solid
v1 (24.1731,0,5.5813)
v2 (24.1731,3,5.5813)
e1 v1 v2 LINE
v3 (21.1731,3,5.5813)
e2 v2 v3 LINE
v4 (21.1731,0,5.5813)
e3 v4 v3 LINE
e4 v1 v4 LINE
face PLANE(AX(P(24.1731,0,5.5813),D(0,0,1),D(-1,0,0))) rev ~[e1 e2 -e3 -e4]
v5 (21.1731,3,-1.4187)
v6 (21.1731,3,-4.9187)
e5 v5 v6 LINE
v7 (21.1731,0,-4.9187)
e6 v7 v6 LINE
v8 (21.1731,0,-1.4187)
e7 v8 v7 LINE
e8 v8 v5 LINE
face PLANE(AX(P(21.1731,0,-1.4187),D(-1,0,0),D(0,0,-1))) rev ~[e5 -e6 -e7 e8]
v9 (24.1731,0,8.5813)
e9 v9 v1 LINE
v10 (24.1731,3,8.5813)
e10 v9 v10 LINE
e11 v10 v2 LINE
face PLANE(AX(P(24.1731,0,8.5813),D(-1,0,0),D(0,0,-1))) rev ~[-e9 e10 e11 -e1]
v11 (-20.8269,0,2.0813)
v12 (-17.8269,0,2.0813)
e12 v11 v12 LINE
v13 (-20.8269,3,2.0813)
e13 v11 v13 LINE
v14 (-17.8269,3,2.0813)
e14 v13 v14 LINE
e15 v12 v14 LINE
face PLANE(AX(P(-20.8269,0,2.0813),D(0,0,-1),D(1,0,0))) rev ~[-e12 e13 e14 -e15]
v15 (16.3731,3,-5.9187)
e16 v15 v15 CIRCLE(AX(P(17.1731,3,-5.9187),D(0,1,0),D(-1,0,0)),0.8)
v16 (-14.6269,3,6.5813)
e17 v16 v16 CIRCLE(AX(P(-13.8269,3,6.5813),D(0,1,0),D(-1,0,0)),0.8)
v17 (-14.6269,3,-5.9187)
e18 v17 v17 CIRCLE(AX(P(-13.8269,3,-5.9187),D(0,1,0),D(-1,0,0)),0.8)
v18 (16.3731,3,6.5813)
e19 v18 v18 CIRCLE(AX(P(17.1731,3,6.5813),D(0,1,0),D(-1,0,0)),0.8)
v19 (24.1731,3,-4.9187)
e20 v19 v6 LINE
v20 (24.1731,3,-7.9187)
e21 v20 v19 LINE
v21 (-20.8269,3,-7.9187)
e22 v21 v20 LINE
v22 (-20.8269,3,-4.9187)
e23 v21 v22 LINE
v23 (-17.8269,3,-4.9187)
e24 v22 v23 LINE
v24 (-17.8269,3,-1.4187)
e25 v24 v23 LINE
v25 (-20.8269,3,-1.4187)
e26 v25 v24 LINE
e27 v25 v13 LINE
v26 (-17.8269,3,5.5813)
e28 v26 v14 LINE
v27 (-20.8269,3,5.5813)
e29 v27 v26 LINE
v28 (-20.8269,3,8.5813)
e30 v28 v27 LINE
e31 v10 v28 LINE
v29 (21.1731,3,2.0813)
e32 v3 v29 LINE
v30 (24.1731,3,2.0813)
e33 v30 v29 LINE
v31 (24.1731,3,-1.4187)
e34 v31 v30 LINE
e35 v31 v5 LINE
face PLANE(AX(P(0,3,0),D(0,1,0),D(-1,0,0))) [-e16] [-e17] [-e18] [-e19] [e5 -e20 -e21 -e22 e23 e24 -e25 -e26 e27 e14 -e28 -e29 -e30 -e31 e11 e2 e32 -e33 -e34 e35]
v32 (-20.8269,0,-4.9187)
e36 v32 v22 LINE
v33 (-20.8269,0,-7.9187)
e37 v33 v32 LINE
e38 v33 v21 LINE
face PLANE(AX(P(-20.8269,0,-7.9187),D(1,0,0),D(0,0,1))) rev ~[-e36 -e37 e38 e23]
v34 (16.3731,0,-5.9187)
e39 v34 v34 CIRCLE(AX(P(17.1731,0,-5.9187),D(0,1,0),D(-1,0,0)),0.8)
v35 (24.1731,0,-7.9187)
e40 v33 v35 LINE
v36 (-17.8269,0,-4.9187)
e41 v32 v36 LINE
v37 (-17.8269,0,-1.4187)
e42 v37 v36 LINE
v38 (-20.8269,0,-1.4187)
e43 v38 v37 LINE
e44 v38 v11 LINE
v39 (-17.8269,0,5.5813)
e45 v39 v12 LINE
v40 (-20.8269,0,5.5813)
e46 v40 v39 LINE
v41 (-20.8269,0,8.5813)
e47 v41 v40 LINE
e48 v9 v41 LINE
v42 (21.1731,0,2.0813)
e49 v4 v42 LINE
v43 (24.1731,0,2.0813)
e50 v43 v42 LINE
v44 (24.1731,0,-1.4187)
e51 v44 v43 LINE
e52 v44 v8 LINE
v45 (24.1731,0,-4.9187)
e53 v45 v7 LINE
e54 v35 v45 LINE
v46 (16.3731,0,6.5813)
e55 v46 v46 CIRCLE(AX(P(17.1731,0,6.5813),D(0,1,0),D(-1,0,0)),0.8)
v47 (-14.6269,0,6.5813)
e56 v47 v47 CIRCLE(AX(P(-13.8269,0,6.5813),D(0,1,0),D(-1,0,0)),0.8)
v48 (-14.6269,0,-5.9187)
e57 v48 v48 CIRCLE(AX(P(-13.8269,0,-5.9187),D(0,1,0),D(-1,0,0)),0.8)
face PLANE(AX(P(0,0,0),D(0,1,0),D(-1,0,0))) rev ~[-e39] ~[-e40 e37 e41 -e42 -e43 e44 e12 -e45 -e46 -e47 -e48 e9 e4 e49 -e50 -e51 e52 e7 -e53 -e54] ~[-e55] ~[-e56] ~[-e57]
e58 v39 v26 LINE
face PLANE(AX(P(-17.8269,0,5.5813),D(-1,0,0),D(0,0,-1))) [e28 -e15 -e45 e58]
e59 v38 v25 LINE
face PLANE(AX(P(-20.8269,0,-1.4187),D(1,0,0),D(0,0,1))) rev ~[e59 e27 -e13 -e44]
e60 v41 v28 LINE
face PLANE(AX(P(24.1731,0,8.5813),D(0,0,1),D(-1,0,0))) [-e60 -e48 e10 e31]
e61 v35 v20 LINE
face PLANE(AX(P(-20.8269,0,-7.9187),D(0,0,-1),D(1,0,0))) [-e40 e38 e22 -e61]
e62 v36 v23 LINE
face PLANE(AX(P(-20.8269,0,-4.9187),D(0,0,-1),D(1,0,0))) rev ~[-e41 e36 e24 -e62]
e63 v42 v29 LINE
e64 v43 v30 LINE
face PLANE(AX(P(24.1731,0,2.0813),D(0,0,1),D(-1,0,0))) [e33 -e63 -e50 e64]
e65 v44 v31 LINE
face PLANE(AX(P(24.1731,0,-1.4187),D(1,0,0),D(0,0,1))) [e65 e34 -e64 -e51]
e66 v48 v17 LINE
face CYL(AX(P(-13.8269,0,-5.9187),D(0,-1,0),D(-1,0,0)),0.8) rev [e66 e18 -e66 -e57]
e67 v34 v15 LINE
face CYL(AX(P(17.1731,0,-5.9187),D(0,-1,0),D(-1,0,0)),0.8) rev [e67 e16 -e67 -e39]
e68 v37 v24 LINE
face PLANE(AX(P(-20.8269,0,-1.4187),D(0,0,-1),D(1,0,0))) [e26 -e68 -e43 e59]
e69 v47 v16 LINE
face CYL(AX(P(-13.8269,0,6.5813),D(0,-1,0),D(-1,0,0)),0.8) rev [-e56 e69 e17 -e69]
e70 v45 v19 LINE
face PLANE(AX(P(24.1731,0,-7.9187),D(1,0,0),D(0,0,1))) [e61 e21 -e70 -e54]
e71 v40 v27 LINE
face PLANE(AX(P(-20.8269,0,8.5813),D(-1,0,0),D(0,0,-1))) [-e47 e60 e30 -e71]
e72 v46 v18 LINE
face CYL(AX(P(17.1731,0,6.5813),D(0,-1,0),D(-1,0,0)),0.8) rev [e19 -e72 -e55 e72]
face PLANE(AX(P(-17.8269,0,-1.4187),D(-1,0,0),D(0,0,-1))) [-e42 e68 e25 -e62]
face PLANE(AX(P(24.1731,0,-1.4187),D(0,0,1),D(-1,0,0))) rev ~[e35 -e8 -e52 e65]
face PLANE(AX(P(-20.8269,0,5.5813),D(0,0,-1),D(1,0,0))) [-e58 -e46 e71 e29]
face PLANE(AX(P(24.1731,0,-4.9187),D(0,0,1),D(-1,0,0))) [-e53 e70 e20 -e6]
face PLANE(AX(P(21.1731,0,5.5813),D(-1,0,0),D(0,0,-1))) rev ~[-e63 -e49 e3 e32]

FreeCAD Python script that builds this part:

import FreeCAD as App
import Part
import Sketcher
Q = App.Units.Quantity

doc = App.newDocument("Part")
body = doc.addObject("PartDesign::Body", "Body")

sketch1 = body.newObject("Sketcher::SketchObject", "Sketch")
sketch1.AttachmentSupport = (doc.getObject("XZ_Plane"), [""])
sketch1.MapMode = "FlatFace"
sketch1.addGeometry(Part.LineSegment(App.Vector(24.2, 5.6, 0), App.Vector(21.2, 5.6, 0)), False)
sketch1.addGeometry(Part.LineSegment(App.Vector(21.2, 5.6, 0), App.Vector(21.2, 2.1, 0)), False)
sketch1.addGeometry(Part.LineSegment(App.Vector(21.2, 2.1, 0), App.Vector(24.2, 2.1, 0)), False)
sketch1.addGeometry(Part.LineSegment(App.Vector(24.2, 2.1, 0), App.Vector(24.2, -1.4, 0)), False)
sketch1.addGeometry(Part.LineSegment(App.Vector(24.2, -1.4, 0), App.Vector(21.2, -1.4, 0)), False)
sketch1.addGeometry(Part.LineSegment(App.Vector(21.2, -1.4, 0), App.Vector(21.2, -4.9, 0)), False)
sketch1.addGeometry(Part.LineSegment(App.Vector(21.2, -4.9, 0), App.Vector(24.2, -4.9, 0)), False)
sketch1.addGeometry(Part.LineSegment(App.Vector(24.2, -4.9, 0), App.Vector(24.2, -7.9, 0)), False)
sketch1.addGeometry(Part.LineSegment(App.Vector(24.2, -7.9, 0), App.Vector(-20.8, -7.9, 0)), False)
sketch1.addGeometry(Part.LineSegment(App.Vector(-20.8, -7.9, 0), App.Vector(-20.8, -4.9, 0)), False)
sketch1.addGeometry(Part.LineSegment(App.Vector(-20.8, -4.9, 0), App.Vector(-17.8, -4.9, 0)), False)
sketch1.addGeometry(Part.LineSegment(App.Vector(-17.8, -4.9, 0), App.Vector(-17.8, -1.4, 0)), False)
sketch1.addGeometry(Part.LineSegment(App.Vector(-17.8, -1.4, 0), App.Vector(-20.8, -1.4, 0)), False)
sketch1.addGeometry(Part.LineSegment(App.Vector(-20.8, -1.4, 0), App.Vector(-20.8, 2.1, 0)), False)
sketch1.addGeometry(Part.LineSegment(App.Vector(-20.8, 2.1, 0), App.Vector(-17.8, 2.1, 0)), False)
sketch1.addGeometry(Part.LineSegment(App.Vector(-17.8, 2.1, 0), App.Vector(-17.8, 5.6, 0)), False)
sketch1.addGeometry(Part.LineSegment(App.Vector(-17.8, 5.6, 0), App.Vector(-20.8, 5.6, 0)), False)
sketch1.addGeometry(Part.LineSegment(App.Vector(-20.8, 5.6, 0), App.Vector(-20.8, 8.6, 0)), False)
sketch1.addGeometry(Part.LineSegment(App.Vector(-20.8, 8.6, 0), App.Vector(24.2, 8.6, 0)), False)
sketch1.addGeometry(Part.LineSegment(App.Vector(24.2, 8.6, 0), App.Vector(24.2, 5.6, 0)), False)
sketch1.addGeometry(Part.Circle(App.Vector(17.2, -5.9, 0), App.Vector(0, 0, 1), 0.8), False)
sketch1.addGeometry(Part.Circle(App.Vector(-13.8, -5.9, 0), App.Vector(0, 0, 1), 0.8), False)
sketch1.addGeometry(Part.Circle(App.Vector(17.2, 6.6, 0), App.Vector(0, 0, 1), 0.8), False)
sketch1.addGeometry(Part.Circle(App.Vector(-13.8, 6.6, 0), App.Vector(0, 0, 1), 0.8), False)
sketch1.addConstraint(Sketcher.Constraint("Coincident", 0, 2, 1, 1))
sketch1.addConstraint(Sketcher.Constraint("Coincident", 1, 2, 2, 1))
sketch1.addConstraint(Sketcher.Constraint("Coincident", 2, 2, 3, 1))
sketch1.addConstraint(Sketcher.Constraint("Coincident", 3, 2, 4, 1))
sketch1.addConstraint(Sketcher.Constraint("Coincident", 4, 2, 5, 1))
sketch1.addConstraint(Sketcher.Constraint("Coincident", 5, 2, 6, 1))
sketch1.addConstraint(Sketcher.Constraint("Coincident", 6, 2, 7, 1))
sketch1.addConstraint(Sketcher.Constraint("Coincident", 7, 2, 8, 1))
sketch1.addConstraint(Sketcher.Constraint("Coincident", 8, 2, 9, 1))
sketch1.addConstraint(Sketcher.Constraint("Coincident", 9, 2, 10, 1))
sketch1.addConstraint(Sketcher.Constraint("Coincident", 10, 2, 11, 1))
sketch1.addConstraint(Sketcher.Constraint("Coincident", 11, 2, 12, 1))
sketch1.addConstraint(Sketcher.Constraint("Coincident", 12, 2, 13, 1))
sketch1.addConstraint(Sketcher.Constraint("Coincident", 13, 2, 14, 1))
sketch1.addConstraint(Sketcher.Constraint("Coincident", 14, 2, 15, 1))
sketch1.addConstraint(Sketcher.Constraint("Coincident", 15, 2, 16, 1))
sketch1.addConstraint(Sketcher.Constraint("Coincident", 16, 2, 17, 1))
sketch1.addConstraint(Sketcher.Constraint("Coincident", 17, 2, 18, 1))
sketch1.addConstraint(Sketcher.Constraint("Coincident", 18, 2, 19, 1))
sketch1.addConstraint(Sketcher.Constraint("Coincident", 19, 2, 0, 1))
sketch1.addConstraint(Sketcher.Constraint("Horizontal", 0))
sketch1.addConstraint(Sketcher.Constraint("Vertical", 1))
sketch1.addConstraint(Sketcher.Constraint("Horizontal", 2))
sketch1.addConstraint(Sketcher.Constraint("Vertical", 3))
sketch1.addConstraint(Sketcher.Constraint("Horizontal", 4))
sketch1.addConstraint(Sketcher.Constraint("Vertical", 5))
sketch1.addConstraint(Sketcher.Constraint("Horizontal", 6))
sketch1.addConstraint(Sketcher.Constraint("Vertical", 7))
sketch1.addConstraint(Sketcher.Constraint("Horizontal", 8))
sketch1.addConstraint(Sketcher.Constraint("Vertical", 9))
sketch1.addConstraint(Sketcher.Constraint("Horizontal", 10))
sketch1.addConstraint(Sketcher.Constraint("Vertical", 11))
sketch1.addConstraint(Sketcher.Constraint("Horizontal", 12))
sketch1.addConstraint(Sketcher.Constraint("Vertical", 13))
sketch1.addConstraint(Sketcher.Constraint("Horizontal", 14))
sketch1.addConstraint(Sketcher.Constraint("Vertical", 15))
sketch1.addConstraint(Sketcher.Constraint("Horizontal", 16))
sketch1.addConstraint(Sketcher.Constraint("Vertical", 17))
sketch1.addConstraint(Sketcher.Constraint("Horizontal", 18))
sketch1.addConstraint(Sketcher.Constraint("Vertical", 19))
sketch1.addConstraint(Sketcher.Constraint("Equal", 20, 21))
sketch1.addConstraint(Sketcher.Constraint("Equal", 21, 22))
sketch1.addConstraint(Sketcher.Constraint("Equal", 22, 23))
sketch1.addConstraint(Sketcher.Constraint("Horizontal", 20, 3, 21, 3))
sketch1.addConstraint(Sketcher.Constraint("Horizontal", 22, 3, 23, 3))
sketch1.addConstraint(Sketcher.Constraint("Horizontal", 6, 2, 9, 2))
sketch1.addConstraint(Sketcher.Constraint("Horizontal", 4, 2, 11, 2))
sketch1.addConstraint(Sketcher.Constraint("Horizontal", 2, 2, 13, 2))
sketch1.addConstraint(Sketcher.Constraint("Horizontal", 0, 2, 15, 2))
sketch1.addConstraint(Sketcher.Constraint("Vertical", 20, 3, 22, 3))
sketch1.addConstraint(Sketcher.Constraint("Vertical", 21, 3, 23, 3))
sketch1.addConstraint(Sketcher.Constraint("Vertical", 1, 2, 4, 2))
sketch1.addConstraint(Sketcher.Constraint("Vertical", 3, 2, 6, 2))
sketch1.addConstraint(Sketcher.Constraint("Vertical", 9, 2, 12, 2))
sketch1.addConstraint(Sketcher.Constraint("Vertical", 11, 2, 14, 2))
sketch1.addConstraint(Sketcher.Constraint("Vertical", 13, 2, 16, 2))
sketch1.addConstraint(Sketcher.Constraint("Vertical", 7, 2, 18, 2))
sketch1.addConstraint(Sketcher.Constraint("Equal", 6, 10))
sketch1.addConstraint(Sketcher.Constraint("Equal", 1, 3))
sketch1.addConstraint(Sketcher.Constraint("Equal", 3, 5))
sketch1.addConstraint(Sketcher.Constraint("Equal", 16, 7))
sketch1.addConstraint(Sketcher.Constraint("Equal", 9, 17))
sketch1.addConstraint(Sketcher.Constraint("Diameter", 20, Q("1.6 mm")))
sketch1.addConstraint(Sketcher.Constraint("DistanceX", 0, 2, 0, 1, Q("3 mm")))
sketch1.addConstraint(Sketcher.Constraint("DistanceX", 8, 2, 8, 1, Q("45 mm")))
sketch1.addConstraint(Sketcher.Constraint("DistanceY", 1, 2, 1, 1, Q("3.5 mm")))
sketch1.addConstraint(Sketcher.Constraint("DistanceX", 21, 3, 20, 3, Q("31 mm")))
sketch1.addConstraint(Sketcher.Constraint("DistanceX", 22, 3, 0, 2, Q("4 mm")))
sketch1.addConstraint(Sketcher.Constraint("DistanceY", 0, 2, 22, 3, Q("1 mm")))
sketch1.addConstraint(Sketcher.Constraint("DistanceY", 20, 3, 1, 2, Q("8 mm")))
sketch1.addConstraint(Sketcher.Constraint("DistanceX", -1, 1, 20, 3, Q("17.173 mm")))
sketch1.addConstraint(Sketcher.Constraint("DistanceY", 20, 3, -1, 1, Q("5.9187 mm")))
pad1 = body.newObject("PartDesign::Pad", "Pad")
pad1.Profile = sketch1
pad1.Length = 3
pad1.Reversed = True

doc.recompute()
